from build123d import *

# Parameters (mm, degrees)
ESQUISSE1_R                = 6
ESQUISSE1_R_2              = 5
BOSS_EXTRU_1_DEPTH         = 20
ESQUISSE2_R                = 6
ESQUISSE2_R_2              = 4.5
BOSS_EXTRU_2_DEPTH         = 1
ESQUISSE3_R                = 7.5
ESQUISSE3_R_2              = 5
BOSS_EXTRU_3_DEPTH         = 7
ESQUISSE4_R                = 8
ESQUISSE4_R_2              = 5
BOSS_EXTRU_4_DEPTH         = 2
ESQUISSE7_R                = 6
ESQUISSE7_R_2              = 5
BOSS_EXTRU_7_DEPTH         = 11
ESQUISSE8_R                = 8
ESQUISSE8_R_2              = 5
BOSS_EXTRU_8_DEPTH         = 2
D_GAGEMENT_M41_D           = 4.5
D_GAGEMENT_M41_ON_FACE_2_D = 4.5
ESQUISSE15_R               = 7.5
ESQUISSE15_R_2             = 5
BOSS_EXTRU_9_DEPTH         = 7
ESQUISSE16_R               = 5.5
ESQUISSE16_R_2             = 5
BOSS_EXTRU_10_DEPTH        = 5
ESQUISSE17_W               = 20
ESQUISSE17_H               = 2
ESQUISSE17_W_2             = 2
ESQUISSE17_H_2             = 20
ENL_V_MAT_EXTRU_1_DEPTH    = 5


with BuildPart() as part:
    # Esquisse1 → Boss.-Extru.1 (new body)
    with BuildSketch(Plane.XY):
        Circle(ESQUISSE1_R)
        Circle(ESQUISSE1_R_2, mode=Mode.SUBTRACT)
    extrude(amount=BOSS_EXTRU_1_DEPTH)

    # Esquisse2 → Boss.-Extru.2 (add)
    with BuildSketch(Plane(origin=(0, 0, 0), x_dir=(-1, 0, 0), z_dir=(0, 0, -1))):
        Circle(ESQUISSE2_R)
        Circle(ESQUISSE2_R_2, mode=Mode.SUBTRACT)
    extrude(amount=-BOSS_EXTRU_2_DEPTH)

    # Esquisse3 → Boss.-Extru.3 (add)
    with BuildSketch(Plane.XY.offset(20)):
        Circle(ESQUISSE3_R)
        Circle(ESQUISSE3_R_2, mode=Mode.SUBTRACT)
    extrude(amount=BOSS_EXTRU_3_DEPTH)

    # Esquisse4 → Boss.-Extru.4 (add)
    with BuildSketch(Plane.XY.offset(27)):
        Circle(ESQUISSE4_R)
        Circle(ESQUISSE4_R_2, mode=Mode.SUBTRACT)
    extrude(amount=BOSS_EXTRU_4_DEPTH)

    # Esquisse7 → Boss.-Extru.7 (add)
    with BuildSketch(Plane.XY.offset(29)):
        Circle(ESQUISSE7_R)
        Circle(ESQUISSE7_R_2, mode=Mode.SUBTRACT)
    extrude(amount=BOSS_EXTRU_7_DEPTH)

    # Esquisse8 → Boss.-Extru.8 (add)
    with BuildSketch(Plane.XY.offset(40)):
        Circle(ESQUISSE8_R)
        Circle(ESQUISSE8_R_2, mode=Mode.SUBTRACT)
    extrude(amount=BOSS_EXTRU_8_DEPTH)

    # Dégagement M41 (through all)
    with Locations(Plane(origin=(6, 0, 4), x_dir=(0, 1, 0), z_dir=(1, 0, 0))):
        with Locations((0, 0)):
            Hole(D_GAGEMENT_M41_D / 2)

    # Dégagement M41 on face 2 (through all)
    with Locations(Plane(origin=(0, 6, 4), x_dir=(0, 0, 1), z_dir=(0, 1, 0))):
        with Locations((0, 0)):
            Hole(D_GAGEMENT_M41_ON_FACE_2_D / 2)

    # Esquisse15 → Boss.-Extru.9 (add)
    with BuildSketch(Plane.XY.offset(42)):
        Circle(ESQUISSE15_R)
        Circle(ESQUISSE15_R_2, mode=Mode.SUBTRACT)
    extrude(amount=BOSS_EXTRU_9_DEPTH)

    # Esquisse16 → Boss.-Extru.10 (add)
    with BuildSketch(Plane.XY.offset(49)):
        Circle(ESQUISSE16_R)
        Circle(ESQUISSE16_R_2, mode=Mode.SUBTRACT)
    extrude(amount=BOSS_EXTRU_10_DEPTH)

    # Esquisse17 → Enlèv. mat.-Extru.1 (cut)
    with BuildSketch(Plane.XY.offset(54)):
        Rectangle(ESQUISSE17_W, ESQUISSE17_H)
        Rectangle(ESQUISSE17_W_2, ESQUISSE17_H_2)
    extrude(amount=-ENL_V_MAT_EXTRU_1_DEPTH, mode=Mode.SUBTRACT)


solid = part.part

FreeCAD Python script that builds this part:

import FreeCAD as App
import Part
import Sketcher
Q = App.Units.Quantity


def add_polygon(sketch, points):
    """Adds a closed chain of lines whose ends are joined by coincident constraints."""
    first, n = sketch.GeometryCount, len(points)
    for a, b in zip(points, points[1:] + points[:1]):
        sketch.addGeometry(Part.LineSegment(App.Vector(*a, 0), App.Vector(*b, 0)), False)
    for i in range(n):
        sketch.addConstraint(Sketcher.Constraint("Coincident", first + i, 2, first + (i + 1) % n, 1))

doc = App.newDocument("Part")
body = doc.addObject("PartDesign::Body", "Body")

# Sketch on XY plane
sketch1 = body.newObject("Sketcher::SketchObject", "Sketch")
sketch1.AttachmentSupport = (doc.getObject("XY_Plane"), [""])
sketch1.MapMode = "FlatFace"
sketch1.addGeometry(Part.Circle(App.Vector(0, 0, 0), App.Vector(0, 0, 1), 6), False)
sketch1.addGeometry(Part.Circle(App.Vector(0, 0, 0), App.Vector(0, 0, 1), 5), False)
sketch1.addConstraint(Sketcher.Constraint("Coincident", 0, 3, -1, 1))
sketch1.addConstraint(Sketcher.Constraint("Coincident", 1, 3, -1, 1))
sketch1.addConstraint(Sketcher.Constraint("Diameter", 0, Q("12 mm")))
sketch1.addConstraint(Sketcher.Constraint("Diameter", 1, Q("10 mm")))
pad1 = body.newObject("PartDesign::Pad", "Pad")
pad1.Profile = sketch1
pad1.Length = 20

# Sketch on XY plane
sketch2 = body.newObject("Sketcher::SketchObject", "Sketch001")
sketch2.AttachmentSupport = (doc.getObject("XY_Plane"), [""])
sketch2.MapMode = "FlatFace"
sketch2.addGeometry(Part.Circle(App.Vector(0, 0, 0), App.Vector(0, 0, 1), 6), False)
sketch2.addGeometry(Part.Circle(App.Vector(0, 0, 0), App.Vector(0, 0, 1), 4.5), False)
sketch2.addConstraint(Sketcher.Constraint("Coincident", 0, 3, -1, 1))
sketch2.addConstraint(Sketcher.Constraint("Coincident", 1, 3, -1, 1))
sketch2.addConstraint(Sketcher.Constraint("Diameter", 0, Q("12 mm")))
sketch2.addConstraint(Sketcher.Constraint("Diameter", 1, Q("9 mm")))
pad2 = body.newObject("PartDesign::Pad", "Pad001")
pad2.Profile = sketch2
pad2.Length = 1

# Sketch on XY plane
sketch3 = body.newObject("Sketcher::SketchObject", "Sketch002")
sketch3.AttachmentSupport = (doc.getObject("XY_Plane"), [""])
sketch3.MapMode = "FlatFace"
sketch3.AttachmentOffset = App.Placement(App.Vector(0, 0, 20), App.Rotation())
sketch3.addGeometry(Part.Circle(App.Vector(0, 0, 0), App.Vector(0, 0, 1), 8), False)
sketch3.addGeometry(Part.Circle(App.Vector(0, 0, 0), App.Vector(0, 0, 1), 5), False)
sketch3.addConstraint(Sketcher.Constraint("Coincident", 0, 3, -1, 1))
sketch3.addConstraint(Sketcher.Constraint("Coincident", 1, 3, -1, 1))
sketch3.addConstraint(Sketcher.Constraint("Diameter", 0, Q("15 mm")))
sketch3.addConstraint(Sketcher.Constraint("Diameter", 1, Q("10 mm")))
pad3 = body.newObject("PartDesign::Pad", "Pad002")
pad3.Profile = sketch3
pad3.Length = 7

# Sketch on XY plane
sketch4 = body.newObject("Sketcher::SketchObject", "Sketch003")
sketch4.AttachmentSupport = (doc.getObject("XY_Plane"), [""])
sketch4.MapMode = "FlatFace"
sketch4.AttachmentOffset = App.Placement(App.Vector(0, 0, 27), App.Rotation())
sketch4.addGeometry(Part.Circle(App.Vector(0, 0, 0), App.Vector(0, 0, 1), 8), False)
sketch4.addGeometry(Part.Circle(App.Vector(0, 0, 0), App.Vector(0, 0, 1), 5), False)
sketch4.addConstraint(Sketcher.Constraint("Coincident", 0, 3, -1, 1))
sketch4.addConstraint(Sketcher.Constraint("Coincident", 1, 3, -1, 1))
sketch4.addConstraint(Sketcher.Constraint("Diameter", 0, Q("16 mm")))
sketch4.addConstraint(Sketcher.Constraint("Diameter", 1, Q("10 mm")))
pad4 = body.newObject("PartDesign::Pad", "Pad003")
pad4.Profile = sketch4
pad4.Length = 2

# Sketch on XY plane
sketch5 = body.newObject("Sketcher::SketchObject", "Sketch004")
sketch5.AttachmentSupport = (doc.getObject("XY_Plane"), [""])
sketch5.MapMode = "FlatFace"
sketch5.AttachmentOffset = App.Placement(App.Vector(0, 0, 29), App.Rotation())
sketch5.addGeometry(Part.Circle(App.Vector(0, 0, 0), App.Vector(0, 0, 1), 6), False)
sketch5.addGeometry(Part.Circle(App.Vector(0, 0, 0), App.Vector(0, 0, 1), 5), False)
sketch5.addConstraint(Sketcher.Constraint("Coincident", 0, 3, -1, 1))
sketch5.addConstraint(Sketcher.Constraint("Coincident", 1, 3, -1, 1))
sketch5.addConstraint(Sketcher.Constraint("Diameter", 0, Q("12 mm")))
sketch5.addConstraint(Sketcher.Constraint("Diameter", 1, Q("10 mm")))
pad5 = body.newObject("PartDesign::Pad", "Pad004")
pad5.Profile = sketch5
pad5.Length = 11

# Sketch on XY plane
sketch6 = body.newObject("Sketcher::SketchObject", "Sketch005")
sketch6.AttachmentSupport = (doc.getObject("XY_Plane"), [""])
sketch6.MapMode = "FlatFace"
sketch6.AttachmentOffset = App.Placement(App.Vector(0, 0, 40), App.Rotation())
sketch6.addGeometry(Part.Circle(App.Vector(0, 0, 0), App.Vector(0, 0, 1), 8), False)
sketch6.addGeometry(Part.Circle(App.Vector(0, 0, 0), App.Vector(0, 0, 1), 5), False)
sketch6.addConstraint(Sketcher.Constraint("Coincident", 0, 3, -1, 1))
sketch6.addConstraint(Sketcher.Constraint("Coincident", 1, 3, -1, 1))
sketch6.addConstraint(Sketcher.Constraint("Diameter", 0, Q("16 mm")))
sketch6.addConstraint(Sketcher.Constraint("Diameter", 1, Q("10 mm")))
pad6 = body.newObject("PartDesign::Pad", "Pad005")
pad6.Profile = sketch6
pad6.Length = 2

# Sketch on YZ plane
sketch7 = body.newObject("Sketcher::SketchObject", "Sketch006")
sketch7.AttachmentSupport = (doc.getObject("YZ_Plane"), [""])
sketch7.MapMode = "FlatFace"
sketch7.AttachmentOffset = App.Placement(App.Vector(0, 0, 6), App.Rotation())
sketch7.addGeometry(Part.Circle(App.Vector(0, 4, 0), App.Vector(0, 0, 1), 2.2), False)
sketch7.addConstraint(Sketcher.Constraint("PointOnObject", 0, 3, -2))
sketch7.addConstraint(Sketcher.Constraint("Diameter", 0, Q("4.5 mm")))
sketch7.addConstraint(Sketcher.Constraint("DistanceY", -1, 1, 0, 3, Q("4 mm")))
doc.recompute()
hole = body.newObject("PartDesign::Hole", "Hole")
hole.Profile = sketch7
hole.ThreadType = "None"
hole.Diameter = 4.5
hole.DepthType = "ThroughAll"

# Sketch on XZ plane
sketch8 = body.newObject("Sketcher::SketchObject", "Sketch007")
sketch8.AttachmentSupport = (doc.getObject("XZ_Plane"), [""])
sketch8.MapMode = "FlatFace"
sketch8.AttachmentOffset = App.Placement(App.Vector(0, 0, -6), App.Rotation())
sketch8.addGeometry(Part.Circle(App.Vector(0, 4, 0), App.Vector(0, 0, 1), 2.2), False)
sketch8.addConstraint(Sketcher.Constraint("PointOnObject", 0, 3, -2))
sketch8.addConstraint(Sketcher.Constraint("Diameter", 0, Q("4.5 mm")))
sketch8.addConstraint(Sketcher.Constraint("DistanceY", -1, 1, 0, 3, Q("4 mm")))
doc.recompute()
hole2 = body.newObject("PartDesign::Hole", "Hole001")
hole2.Profile = sketch8
hole2.ThreadType = "None"
hole2.Diameter = 4.5
hole2.DepthType = "ThroughAll"
hole2.Reversed = True

# Sketch on XY plane
sketch9 = body.newObject("Sketcher::SketchObject", "Sketch008")
sketch9.AttachmentSupport = (doc.getObject("XY_Plane"), [""])
sketch9.MapMode = "FlatFace"
sketch9.AttachmentOffset = App.Placement(App.Vector(0, 0, 42), App.Rotation())
sketch9.addGeometry(Part.Circle(App.Vector(0, 0, 0), App.Vector(0, 0, 1), 8), False)
sketch9.addGeometry(Part.Circle(App.Vector(0, 0, 0), App.Vector(0, 0, 1), 5), False)
sketch9.addConstraint(Sketcher.Constraint("Coincident", 0, 3, -1, 1))
sketch9.addConstraint(Sketcher.Constraint("Coincident", 1, 3, -1, 1))
sketch9.addConstraint(Sketcher.Constraint("Diameter", 0, Q("15 mm")))
sketch9.addConstraint(Sketcher.Constraint("Diameter", 1, Q("10 mm")))
pad7 = body.newObject("PartDesign::Pad", "Pad006")
pad7.Profile = sketch9
pad7.Length = 7

# Sketch on XY plane
sketch10 = body.newObject("Sketcher::SketchObject", "Sketch009")
sketch10.AttachmentSupport = (doc.getObject("XY_Plane"), [""])
sketch10.MapMode = "FlatFace"
sketch10.AttachmentOffset = App.Placement(App.Vector(0, 0, 49), App.Rotation())
sketch10.addGeometry(Part.Circle(App.Vector(0, 0, 0), App.Vector(0, 0, 1), 6), False)
sketch10.addGeometry(Part.Circle(App.Vector(0, 0, 0), App.Vector(0, 0, 1), 5), False)
sketch10.addConstraint(Sketcher.Constraint("Coincident", 0, 3, -1, 1))
sketch10.addConstraint(Sketcher.Constraint("Coincident", 1, 3, -1, 1))
sketch10.addConstraint(Sketcher.Constraint("Diameter", 0, Q("11 mm")))
sketch10.addConstraint(Sketcher.Constraint("Diameter", 1, Q("10 mm")))
pad8 = body.newObject("PartDesign::Pad", "Pad007")
pad8.Profile = sketch10
pad8.Length = 5

# Sketch on XY plane
sketch11 = body.newObject("Sketcher::SketchObject", "Sketch010")
sketch11.AttachmentSupport = (doc.getObject("XY_Plane"), [""])
sketch11.MapMode = "FlatFace"
sketch11.AttachmentOffset = App.Placement(App.Vector(0, 0, 54), App.Rotation())
add_polygon(sketch11, [(-10, 1), (-10, -1), (-1, -1), (-1, -10), (1, -10), (1, -1), (10, -1), (10, 1), (1, 1), (1, 10), (-1, 10), (-1, 1)])  # lines 0-11
sketch11.addConstraint(Sketcher.Constraint("Vertical", 0))
sketch11.addConstraint(Sketcher.Constraint("Horizontal", 1))
sketch11.addConstraint(Sketcher.Constraint("Vertical", 2))
sketch11.addConstraint(Sketcher.Constraint("Horizontal", 3))
sketch11.addConstraint(Sketcher.Constraint("Vertical", 4))
sketch11.addConstraint(Sketcher.Constraint("Horizontal", 5))
sketch11.addConstraint(Sketcher.Constraint("Vertical", 6))
sketch11.addConstraint(Sketcher.Constraint("Horizontal", 7))
sketch11.addConstraint(Sketcher.Constraint("Vertical", 8))
sketch11.addConstraint(Sketcher.Constraint("Horizontal", 9))
sketch11.addConstraint(Sketcher.Constraint("Vertical", 10))
sketch11.addConstraint(Sketcher.Constraint("Horizontal", 11))
sketch11.addConstraint(Sketcher.Constraint("Symmetric", 0, 2, 6, 2, -1, 1))
sketch11.addConstraint(Sketcher.Constraint("Symmetric", 2, 2, 8, 2, -1, 1))
sketch11.addConstraint(Sketcher.Constraint("Symmetric", 4, 2, 10, 2, -1, 1))
sketch11.addConstraint(Sketcher.Constraint("Symmetric", 1, 2, 4, 2, -2))
sketch11.addConstraint(Sketcher.Constraint("Equal", 9, 0))
sketch11.addConstraint(Sketcher.Constraint("Equal", 11, 2))
sketch11.addConstraint(Sketcher.Constraint("DistanceX", 1, 1, 1, 2, Q("9 mm")))
sketch11.addConstraint(Sketcher.Constraint("DistanceX", 3, 1, 3, 2, Q("2 mm")))
pocket1 = body.newObject("PartDesign::Pocket", "Pocket")
pocket1.Profile = sketch11
pocket1.Length = 5

doc.recompute()
